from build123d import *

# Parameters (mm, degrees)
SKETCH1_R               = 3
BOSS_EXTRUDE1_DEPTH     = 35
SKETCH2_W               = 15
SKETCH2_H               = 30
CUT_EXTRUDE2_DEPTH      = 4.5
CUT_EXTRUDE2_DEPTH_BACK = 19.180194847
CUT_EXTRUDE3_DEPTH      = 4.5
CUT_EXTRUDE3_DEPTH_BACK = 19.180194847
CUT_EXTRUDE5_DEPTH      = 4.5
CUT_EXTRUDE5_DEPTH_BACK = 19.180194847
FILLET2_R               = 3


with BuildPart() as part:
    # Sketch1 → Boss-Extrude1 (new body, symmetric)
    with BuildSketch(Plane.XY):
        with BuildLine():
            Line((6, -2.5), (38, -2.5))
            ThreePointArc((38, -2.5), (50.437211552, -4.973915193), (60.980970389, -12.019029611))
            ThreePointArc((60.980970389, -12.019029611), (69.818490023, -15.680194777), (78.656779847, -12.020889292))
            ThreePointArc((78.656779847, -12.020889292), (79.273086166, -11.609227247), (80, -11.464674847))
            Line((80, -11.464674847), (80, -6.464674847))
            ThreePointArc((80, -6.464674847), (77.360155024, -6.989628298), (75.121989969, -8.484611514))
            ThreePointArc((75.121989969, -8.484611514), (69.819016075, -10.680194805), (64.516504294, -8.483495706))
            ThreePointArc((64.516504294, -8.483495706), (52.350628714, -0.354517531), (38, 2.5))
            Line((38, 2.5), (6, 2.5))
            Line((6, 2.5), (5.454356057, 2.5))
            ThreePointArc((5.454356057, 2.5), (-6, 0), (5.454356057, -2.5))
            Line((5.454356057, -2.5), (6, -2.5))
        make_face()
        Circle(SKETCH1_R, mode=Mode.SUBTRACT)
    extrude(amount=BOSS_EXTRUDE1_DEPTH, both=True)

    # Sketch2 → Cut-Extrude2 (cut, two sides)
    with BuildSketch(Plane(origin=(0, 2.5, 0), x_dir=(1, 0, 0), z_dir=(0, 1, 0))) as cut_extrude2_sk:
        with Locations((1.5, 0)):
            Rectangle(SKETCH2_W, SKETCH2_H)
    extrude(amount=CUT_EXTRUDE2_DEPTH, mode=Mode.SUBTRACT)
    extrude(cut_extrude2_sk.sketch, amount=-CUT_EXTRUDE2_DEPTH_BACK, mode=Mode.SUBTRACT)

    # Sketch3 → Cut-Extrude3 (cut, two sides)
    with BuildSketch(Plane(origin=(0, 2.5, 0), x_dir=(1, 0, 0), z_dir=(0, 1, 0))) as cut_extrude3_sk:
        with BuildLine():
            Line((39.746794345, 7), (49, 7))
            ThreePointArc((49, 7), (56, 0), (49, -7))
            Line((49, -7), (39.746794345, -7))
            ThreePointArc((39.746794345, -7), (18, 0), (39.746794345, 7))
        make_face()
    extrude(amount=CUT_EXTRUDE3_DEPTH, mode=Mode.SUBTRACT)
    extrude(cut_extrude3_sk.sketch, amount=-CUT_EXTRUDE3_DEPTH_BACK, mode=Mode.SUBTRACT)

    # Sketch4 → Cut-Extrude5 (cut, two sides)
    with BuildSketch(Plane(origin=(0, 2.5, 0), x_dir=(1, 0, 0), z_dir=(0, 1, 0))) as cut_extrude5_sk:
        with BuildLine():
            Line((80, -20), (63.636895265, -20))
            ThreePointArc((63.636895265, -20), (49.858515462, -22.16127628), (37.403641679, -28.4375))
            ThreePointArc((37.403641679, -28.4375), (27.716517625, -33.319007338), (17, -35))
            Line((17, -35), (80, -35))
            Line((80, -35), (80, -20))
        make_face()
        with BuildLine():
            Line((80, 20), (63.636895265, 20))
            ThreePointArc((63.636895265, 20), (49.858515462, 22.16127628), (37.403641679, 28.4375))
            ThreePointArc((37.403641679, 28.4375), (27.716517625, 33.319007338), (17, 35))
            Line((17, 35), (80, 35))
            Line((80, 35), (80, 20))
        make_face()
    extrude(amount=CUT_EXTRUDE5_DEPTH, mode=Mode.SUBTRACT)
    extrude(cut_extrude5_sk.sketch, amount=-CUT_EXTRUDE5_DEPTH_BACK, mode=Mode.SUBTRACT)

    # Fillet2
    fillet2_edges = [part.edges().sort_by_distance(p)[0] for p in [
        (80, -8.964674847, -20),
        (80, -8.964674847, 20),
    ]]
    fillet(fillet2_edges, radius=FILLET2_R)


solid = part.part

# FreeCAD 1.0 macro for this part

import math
import FreeCAD as App
import Part
import Sketcher


def edges_at(feature, points):
    """Names of the edges that pass closest to the given points."""
    edges = feature.Shape.Edges
    near = lambda p: min(range(len(edges)), key=lambda i: edges[i].distToShape(Part.Vertex(*p))[0])
    return sorted({f"Edge{near(p) + 1}" for p in points})

doc = App.newDocument("Part")
body = doc.addObject("PartDesign::Body", "Body")

# Sketch on XY plane
sketch1 = body.newObject("Sketcher::SketchObject", "Sketch")
sketch1.AttachmentSupport = (doc.getObject("XY_Plane"), [""])
sketch1.MapMode = "FlatFace"
sketch1.addGeometry([
    Part.ArcOfCircle(Part.Circle(App.Vector(38, -35, 0), App.Vector(0, 0, 1), 32.5), math.radians(45), math.radians(90)),  # 0
    Part.ArcOfCircle(Part.Circle(App.Vector(69.8, -3.2, 0), App.Vector(0, 0, 1), 12.5), math.radians(-135), math.radians(-45)),  # 1
    Part.ArcOfCircle(Part.Circle(App.Vector(80, -13.4, 0), App.Vector(0, 0, 1), 1.9), math.radians(90), math.radians(135)),  # 2
    Part.LineSegment(App.Vector(80, -11.5, 0), App.Vector(80, -6.5, 0)),  # 3
    Part.ArcOfCircle(Part.Circle(App.Vector(80, -13.4, 0), App.Vector(0, 0, 1), 6.9), math.radians(90), math.radians(135)),  # 4
    Part.ArcOfCircle(Part.Circle(App.Vector(69.8, -3.2, 0), App.Vector(0, 0, 1), 7.5), math.radians(-135), math.radians(-45)),  # 5
    Part.ArcOfCircle(Part.Circle(App.Vector(38, -35, 0), App.Vector(0, 0, 1), 37.5), math.radians(45), math.radians(90)),  # 6
    Part.LineSegment(App.Vector(38, 2.5, 0), App.Vector(5.5, 2.5, 0)),  # 7
    Part.ArcOfCircle(Part.Circle(App.Vector(0, 0, 0), App.Vector(0, 0, 1), 6), math.radians(25), math.radians(335)),  # 8
    Part.LineSegment(App.Vector(5.5, -2.5, 0), App.Vector(38, -2.5, 0)),  # 9
    Part.Circle(App.Vector(0, 0, 0), App.Vector(0, 0, 1), 3),  # 10
], False)
sketch1.addConstraint([
    Sketcher.Constraint("Tangent", 0, 1, 1, 1),
    Sketcher.Constraint("Tangent", 1, 2, 2, 2),
    Sketcher.Constraint("Coincident", 2, 1, 3, 1),
    Sketcher.Constraint("Coincident", 3, 2, 4, 1),
    Sketcher.Constraint("Tangent", 4, 2, 5, 2),
    Sketcher.Constraint("Tangent", 5, 1, 6, 1),
    Sketcher.Constraint("Tangent", 6, 2, 7, 1),
    Sketcher.Constraint("Coincident", 7, 2, 8, 1),
    Sketcher.Constraint("Coincident", 8, 2, 9, 1),
    Sketcher.Constraint("Tangent", 9, 2, 0, 2),
    Sketcher.Constraint("Vertical", 3),
    Sketcher.Constraint("Horizontal", 7),
    Sketcher.Constraint("Horizontal", 9),
    Sketcher.Constraint("Coincident", 8, 3, -1, 1),
    Sketcher.Constraint("Coincident", 10, 3, -1, 1),
    Sketcher.Constraint("Coincident", 4, 3, 2, 3),
    Sketcher.Constraint("Coincident", 5, 3, 1, 3),
    Sketcher.Constraint("Coincident", 6, 3, 0, 3),
    Sketcher.Constraint("Vertical", 4, 3, 2, 1),
    Sketcher.Constraint("Vertical", 7, 2, 8, 2),
    Sketcher.Constraint("Diameter", 10, 6.0),
    Sketcher.Constraint("Radius", 8, 6.0),
    Sketcher.Constraint("Radius", 0, 32.5),
    Sketcher.Constraint("Radius", 1, 12.5),
    Sketcher.Constraint("Radius", 2, 1.9),
    Sketcher.Constraint("Radius", 4, 6.9),
    Sketcher.Constraint("DistanceX", -1, 1, 0, 3, 38.0),
    Sketcher.Constraint("DistanceX", -1, 1, 2, 3, 80.0),
    Sketcher.Constraint("DistanceX", 5, 1, 5, 3, 5.303301),
])
pad1 = body.newObject("PartDesign::Pad", "Pad")
pad1.Profile = sketch1
pad1.Length = 70
pad1.Midplane = True

# Sketch on XZ plane
sketch2 = body.newObject("Sketcher::SketchObject", "Sketch001")
sketch2.AttachmentSupport = (doc.getObject("XZ_Plane"), [""])
sketch2.MapMode = "FlatFace"
sketch2.AttachmentOffset = App.Placement(App.Vector(0, 0, -2.5), App.Rotation())
sketch2.addGeometry([
    Part.LineSegment(App.Vector(-6, -15, 0), App.Vector(-6, 15, 0)),
    Part.LineSegment(App.Vector(-6, 15, 0), App.Vector(9, 15, 0)),
    Part.LineSegment(App.Vector(9, 15, 0), App.Vector(9, -15, 0)),
    Part.LineSegment(App.Vector(9, -15, 0), App.Vector(-6, -15, 0)),
], False)
sketch2.addConstraint([
    Sketcher.Constraint("Coincident", 0, 2, 1, 1),
    Sketcher.Constraint("Coincident", 1, 2, 2, 1),
    Sketcher.Constraint("Coincident", 2, 2, 3, 1),
    Sketcher.Constraint("Coincident", 3, 2, 0, 1),
    Sketcher.Constraint("Vertical", 0),
    Sketcher.Constraint("Horizontal", 1),
    Sketcher.Constraint("Vertical", 2),
    Sketcher.Constraint("Horizontal", 3),
    Sketcher.Constraint("DistanceX", 1, 1, 1, 2, 15.0),
    Sketcher.Constraint("DistanceY", 0, 1, 0, 2, 30.0),
    Sketcher.Constraint("DistanceX", 0, 2, -1, 1, 6.0),
    Sketcher.Constraint("DistanceY", -1, 1, 0, 2, 15.0),
])
pocket1 = body.newObject("PartDesign::Pocket", "Pocket")
pocket1.Profile = sketch2
pocket1.Type = "ThroughAll"
pocket1.Midplane = True

# Sketch on XZ plane
sketch3 = body.newObject("Sketcher::SketchObject", "Sketch002")
sketch3.AttachmentSupport = (doc.getObject("XZ_Plane"), [""])
sketch3.MapMode = "FlatFace"
sketch3.AttachmentOffset = App.Placement(App.Vector(0, 0, -2.5), App.Rotation())
sketch3.addGeometry([
    Part.LineSegment(App.Vector(49, -7, 0), App.Vector(40, -7, 0)),
    Part.ArcOfCircle(Part.Circle(App.Vector(30, 0, 0), App.Vector(0, 0, 1), 12), math.radians(36), math.radians(324)),
    Part.LineSegment(App.Vector(40, 7, 0), App.Vector(49, 7, 0)),
    Part.ArcOfCircle(Part.Circle(App.Vector(49, 0, 0), App.Vector(0, 0, 1), 7), math.radians(-90), math.radians(90)),
], False)
sketch3.addConstraint([
    Sketcher.Constraint("Coincident", 0, 2, 1, 2),
    Sketcher.Constraint("Coincident", 1, 1, 2, 1),
    Sketcher.Constraint("Tangent", 2, 2, 3, 2),
    Sketcher.Constraint("Tangent", 3, 1, 0, 1),
    Sketcher.Constraint("Horizontal", 0),
    Sketcher.Constraint("Horizontal", 2),
    Sketcher.Constraint("Symmetric", 0, 2, 1, 1, -1),
    Sketcher.Constraint("Radius", 1, 12.0),
    Sketcher.Constraint("Radius", 3, 7.0),
    Sketcher.Constraint("DistanceX", -1, 1, 1, 3, 30.0),
    Sketcher.Constraint("DistanceX", -1, 1, 3, 3, 49.0),
])
pocket2 = body.newObject("PartDesign::Pocket", "Pocket001")
pocket2.Profile = sketch3
pocket2.Type = "ThroughAll"
pocket2.Midplane = True

# Sketch on XZ plane
sketch4 = body.newObject("Sketcher::SketchObject", "Sketch003")
sketch4.AttachmentSupport = (doc.getObject("XZ_Plane"), [""])
sketch4.MapMode = "FlatFace"
sketch4.AttachmentOffset = App.Placement(App.Vector(0, 0, -2.5), App.Rotation())
sketch4.addGeometry([
    Part.LineSegment(App.Vector(80, 20, 0), App.Vector(64, 20, 0)),  # 0
    Part.ArcOfCircle(Part.Circle(App.Vector(64, 65, 0), App.Vector(0, 0, 1), 45), math.radians(-126), math.radians(-90)),  # 1
    Part.ArcOfCircle(Part.Circle(App.Vector(17, 0, 0), App.Vector(0, 0, 1), 35), math.radians(54), math.radians(90)),  # 2
    Part.LineSegment(App.Vector(17, 35, 0), App.Vector(80, 35, 0)),  # 3
    Part.LineSegment(App.Vector(80, 35, 0), App.Vector(80, 20, 0)),  # 4
    Part.LineSegment(App.Vector(64, -20, 0), App.Vector(80, -20, 0)),  # 5
    Part.LineSegment(App.Vector(80, -20, 0), App.Vector(80, -35, 0)),  # 6
    Part.LineSegment(App.Vector(80, -35, 0), App.Vector(17, -35, 0)),  # 7
    Part.ArcOfCircle(Part.Circle(App.Vector(17, 0, 0), App.Vector(0, 0, 1), 35), math.radians(-90), math.radians(-54)),  # 8
    Part.ArcOfCircle(Part.Circle(App.Vector(64, -65, 0), App.Vector(0, 0, 1), 45), math.radians(90), math.radians(126)),  # 9
], False)
sketch4.addConstraint([
    Sketcher.Constraint("Tangent", 0, 2, 1, 2),
    Sketcher.Constraint("Tangent", 1, 1, 2, 1),
    Sketcher.Constraint("Tangent", 2, 2, 3, 1),
    Sketcher.Constraint("Coincident", 3, 2, 4, 1),
    Sketcher.Constraint("Coincident", 4, 2, 0, 1),
    Sketcher.Constraint("Coincident", 5, 2, 6, 1),
    Sketcher.Constraint("Coincident", 6, 2, 7, 1),
    Sketcher.Constraint("Tangent", 7, 2, 8, 1),
    Sketcher.Constraint("Tangent", 8, 2, 9, 2),
    Sketcher.Constraint("Tangent", 9, 1, 5, 1),
    Sketcher.Constraint("Horizontal", 0),
    Sketcher.Constraint("Horizontal", 3),
    Sketcher.Constraint("Vertical", 4),
    Sketcher.Constraint("Horizontal", 5),
    Sketcher.Constraint("Vertical", 6),
    Sketcher.Constraint("Horizontal", 7),
    Sketcher.Constraint("Coincident", 8, 3, 2, 3),
    Sketcher.Constraint("Equal", 2, 8),
    Sketcher.Constraint("Equal", 1, 9),
    Sketcher.Constraint("Symmetric", 1, 3, 9, 3, -1),
    Sketcher.Constraint("Vertical", 4, 2, 5, 2),
    Sketcher.Constraint("Radius", 1, 45.0),
    Sketcher.Constraint("Radius", 2, 35.0),
    Sketcher.Constraint("DistanceX", 3, 1, 3, 2, 63.0),
    Sketcher.Constraint("DistanceY", 4, 2, 4, 1, 15.0),
    Sketcher.Constraint("DistanceX", -1, 1, 2, 3, 17.0),
])
pocket3 = body.newObject("PartDesign::Pocket", "Pocket002")
pocket3.Profile = sketch4
pocket3.Type = "ThroughAll"
pocket3.Midplane = True
doc.recompute()

fillet = body.newObject("PartDesign::Fillet", "Fillet")
fillet.Base = (pocket3, edges_at(pocket3, [(80, -8.965, -20), (80, -8.965, 20)]))
fillet.Radius = 3

doc.recompute()
